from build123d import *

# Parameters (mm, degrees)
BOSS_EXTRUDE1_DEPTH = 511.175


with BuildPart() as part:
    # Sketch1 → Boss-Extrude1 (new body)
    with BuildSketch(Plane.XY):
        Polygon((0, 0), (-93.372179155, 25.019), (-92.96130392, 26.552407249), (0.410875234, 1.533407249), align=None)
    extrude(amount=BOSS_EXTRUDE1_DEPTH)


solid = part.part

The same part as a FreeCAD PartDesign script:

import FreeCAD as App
import Part
import Sketcher

V = App.Vector
Q = App.Units.Quantity

doc = App.newDocument("Part")
body = doc.addObject("PartDesign::Body", "Body")

# Sketch on XY plane
sketch1 = body.newObject("Sketcher::SketchObject", "Sketch")
sketch1.AttachmentSupport = (doc.getObject("XY_Plane"), [""])
sketch1.MapMode = "FlatFace"
sketch1.addGeometry([
    Part.LineSegment(V(-93.372179, 25.019, 0), V(0, 0, 0)),
    Part.LineSegment(V(0, 0, 0), V(0.410875, 1.533407, 0)),
    Part.LineSegment(V(0.410875, 1.533407, 0), V(-92.961304, 26.552407, 0)),
    Part.LineSegment(V(-92.961304, 26.552407, 0), V(-93.372179, 25.019, 0)),
], False)
sketch1.addConstraint([
    Sketcher.Constraint("Coincident", 0, 2, 1, 1),
    Sketcher.Constraint("Coincident", 1, 2, 2, 1),
    Sketcher.Constraint("Coincident", 2, 2, 3, 1),
    Sketcher.Constraint("Coincident", 3, 2, 0, 1),
    Sketcher.Constraint("Coincident", 0, 2, -1, 1),
    Sketcher.Constraint("Perpendicular", 0, 1),
    Sketcher.Constraint("Perpendicular", 1, 2),
    Sketcher.Constraint("Perpendicular", 2, 3),
    Sketcher.Constraint("Angle", 0, Q("-15 deg")),
    Sketcher.Constraint("Distance", 1, Q("0.0625 in")),
    Sketcher.Constraint("DistanceY", -1, 1, 3, 2, Q("0.985 in")),
])
pad1 = body.newObject("PartDesign::Pad", "Pad")
pad1.Profile = sketch1
pad1.Length = Q("20.125 in")

doc.recompute()
